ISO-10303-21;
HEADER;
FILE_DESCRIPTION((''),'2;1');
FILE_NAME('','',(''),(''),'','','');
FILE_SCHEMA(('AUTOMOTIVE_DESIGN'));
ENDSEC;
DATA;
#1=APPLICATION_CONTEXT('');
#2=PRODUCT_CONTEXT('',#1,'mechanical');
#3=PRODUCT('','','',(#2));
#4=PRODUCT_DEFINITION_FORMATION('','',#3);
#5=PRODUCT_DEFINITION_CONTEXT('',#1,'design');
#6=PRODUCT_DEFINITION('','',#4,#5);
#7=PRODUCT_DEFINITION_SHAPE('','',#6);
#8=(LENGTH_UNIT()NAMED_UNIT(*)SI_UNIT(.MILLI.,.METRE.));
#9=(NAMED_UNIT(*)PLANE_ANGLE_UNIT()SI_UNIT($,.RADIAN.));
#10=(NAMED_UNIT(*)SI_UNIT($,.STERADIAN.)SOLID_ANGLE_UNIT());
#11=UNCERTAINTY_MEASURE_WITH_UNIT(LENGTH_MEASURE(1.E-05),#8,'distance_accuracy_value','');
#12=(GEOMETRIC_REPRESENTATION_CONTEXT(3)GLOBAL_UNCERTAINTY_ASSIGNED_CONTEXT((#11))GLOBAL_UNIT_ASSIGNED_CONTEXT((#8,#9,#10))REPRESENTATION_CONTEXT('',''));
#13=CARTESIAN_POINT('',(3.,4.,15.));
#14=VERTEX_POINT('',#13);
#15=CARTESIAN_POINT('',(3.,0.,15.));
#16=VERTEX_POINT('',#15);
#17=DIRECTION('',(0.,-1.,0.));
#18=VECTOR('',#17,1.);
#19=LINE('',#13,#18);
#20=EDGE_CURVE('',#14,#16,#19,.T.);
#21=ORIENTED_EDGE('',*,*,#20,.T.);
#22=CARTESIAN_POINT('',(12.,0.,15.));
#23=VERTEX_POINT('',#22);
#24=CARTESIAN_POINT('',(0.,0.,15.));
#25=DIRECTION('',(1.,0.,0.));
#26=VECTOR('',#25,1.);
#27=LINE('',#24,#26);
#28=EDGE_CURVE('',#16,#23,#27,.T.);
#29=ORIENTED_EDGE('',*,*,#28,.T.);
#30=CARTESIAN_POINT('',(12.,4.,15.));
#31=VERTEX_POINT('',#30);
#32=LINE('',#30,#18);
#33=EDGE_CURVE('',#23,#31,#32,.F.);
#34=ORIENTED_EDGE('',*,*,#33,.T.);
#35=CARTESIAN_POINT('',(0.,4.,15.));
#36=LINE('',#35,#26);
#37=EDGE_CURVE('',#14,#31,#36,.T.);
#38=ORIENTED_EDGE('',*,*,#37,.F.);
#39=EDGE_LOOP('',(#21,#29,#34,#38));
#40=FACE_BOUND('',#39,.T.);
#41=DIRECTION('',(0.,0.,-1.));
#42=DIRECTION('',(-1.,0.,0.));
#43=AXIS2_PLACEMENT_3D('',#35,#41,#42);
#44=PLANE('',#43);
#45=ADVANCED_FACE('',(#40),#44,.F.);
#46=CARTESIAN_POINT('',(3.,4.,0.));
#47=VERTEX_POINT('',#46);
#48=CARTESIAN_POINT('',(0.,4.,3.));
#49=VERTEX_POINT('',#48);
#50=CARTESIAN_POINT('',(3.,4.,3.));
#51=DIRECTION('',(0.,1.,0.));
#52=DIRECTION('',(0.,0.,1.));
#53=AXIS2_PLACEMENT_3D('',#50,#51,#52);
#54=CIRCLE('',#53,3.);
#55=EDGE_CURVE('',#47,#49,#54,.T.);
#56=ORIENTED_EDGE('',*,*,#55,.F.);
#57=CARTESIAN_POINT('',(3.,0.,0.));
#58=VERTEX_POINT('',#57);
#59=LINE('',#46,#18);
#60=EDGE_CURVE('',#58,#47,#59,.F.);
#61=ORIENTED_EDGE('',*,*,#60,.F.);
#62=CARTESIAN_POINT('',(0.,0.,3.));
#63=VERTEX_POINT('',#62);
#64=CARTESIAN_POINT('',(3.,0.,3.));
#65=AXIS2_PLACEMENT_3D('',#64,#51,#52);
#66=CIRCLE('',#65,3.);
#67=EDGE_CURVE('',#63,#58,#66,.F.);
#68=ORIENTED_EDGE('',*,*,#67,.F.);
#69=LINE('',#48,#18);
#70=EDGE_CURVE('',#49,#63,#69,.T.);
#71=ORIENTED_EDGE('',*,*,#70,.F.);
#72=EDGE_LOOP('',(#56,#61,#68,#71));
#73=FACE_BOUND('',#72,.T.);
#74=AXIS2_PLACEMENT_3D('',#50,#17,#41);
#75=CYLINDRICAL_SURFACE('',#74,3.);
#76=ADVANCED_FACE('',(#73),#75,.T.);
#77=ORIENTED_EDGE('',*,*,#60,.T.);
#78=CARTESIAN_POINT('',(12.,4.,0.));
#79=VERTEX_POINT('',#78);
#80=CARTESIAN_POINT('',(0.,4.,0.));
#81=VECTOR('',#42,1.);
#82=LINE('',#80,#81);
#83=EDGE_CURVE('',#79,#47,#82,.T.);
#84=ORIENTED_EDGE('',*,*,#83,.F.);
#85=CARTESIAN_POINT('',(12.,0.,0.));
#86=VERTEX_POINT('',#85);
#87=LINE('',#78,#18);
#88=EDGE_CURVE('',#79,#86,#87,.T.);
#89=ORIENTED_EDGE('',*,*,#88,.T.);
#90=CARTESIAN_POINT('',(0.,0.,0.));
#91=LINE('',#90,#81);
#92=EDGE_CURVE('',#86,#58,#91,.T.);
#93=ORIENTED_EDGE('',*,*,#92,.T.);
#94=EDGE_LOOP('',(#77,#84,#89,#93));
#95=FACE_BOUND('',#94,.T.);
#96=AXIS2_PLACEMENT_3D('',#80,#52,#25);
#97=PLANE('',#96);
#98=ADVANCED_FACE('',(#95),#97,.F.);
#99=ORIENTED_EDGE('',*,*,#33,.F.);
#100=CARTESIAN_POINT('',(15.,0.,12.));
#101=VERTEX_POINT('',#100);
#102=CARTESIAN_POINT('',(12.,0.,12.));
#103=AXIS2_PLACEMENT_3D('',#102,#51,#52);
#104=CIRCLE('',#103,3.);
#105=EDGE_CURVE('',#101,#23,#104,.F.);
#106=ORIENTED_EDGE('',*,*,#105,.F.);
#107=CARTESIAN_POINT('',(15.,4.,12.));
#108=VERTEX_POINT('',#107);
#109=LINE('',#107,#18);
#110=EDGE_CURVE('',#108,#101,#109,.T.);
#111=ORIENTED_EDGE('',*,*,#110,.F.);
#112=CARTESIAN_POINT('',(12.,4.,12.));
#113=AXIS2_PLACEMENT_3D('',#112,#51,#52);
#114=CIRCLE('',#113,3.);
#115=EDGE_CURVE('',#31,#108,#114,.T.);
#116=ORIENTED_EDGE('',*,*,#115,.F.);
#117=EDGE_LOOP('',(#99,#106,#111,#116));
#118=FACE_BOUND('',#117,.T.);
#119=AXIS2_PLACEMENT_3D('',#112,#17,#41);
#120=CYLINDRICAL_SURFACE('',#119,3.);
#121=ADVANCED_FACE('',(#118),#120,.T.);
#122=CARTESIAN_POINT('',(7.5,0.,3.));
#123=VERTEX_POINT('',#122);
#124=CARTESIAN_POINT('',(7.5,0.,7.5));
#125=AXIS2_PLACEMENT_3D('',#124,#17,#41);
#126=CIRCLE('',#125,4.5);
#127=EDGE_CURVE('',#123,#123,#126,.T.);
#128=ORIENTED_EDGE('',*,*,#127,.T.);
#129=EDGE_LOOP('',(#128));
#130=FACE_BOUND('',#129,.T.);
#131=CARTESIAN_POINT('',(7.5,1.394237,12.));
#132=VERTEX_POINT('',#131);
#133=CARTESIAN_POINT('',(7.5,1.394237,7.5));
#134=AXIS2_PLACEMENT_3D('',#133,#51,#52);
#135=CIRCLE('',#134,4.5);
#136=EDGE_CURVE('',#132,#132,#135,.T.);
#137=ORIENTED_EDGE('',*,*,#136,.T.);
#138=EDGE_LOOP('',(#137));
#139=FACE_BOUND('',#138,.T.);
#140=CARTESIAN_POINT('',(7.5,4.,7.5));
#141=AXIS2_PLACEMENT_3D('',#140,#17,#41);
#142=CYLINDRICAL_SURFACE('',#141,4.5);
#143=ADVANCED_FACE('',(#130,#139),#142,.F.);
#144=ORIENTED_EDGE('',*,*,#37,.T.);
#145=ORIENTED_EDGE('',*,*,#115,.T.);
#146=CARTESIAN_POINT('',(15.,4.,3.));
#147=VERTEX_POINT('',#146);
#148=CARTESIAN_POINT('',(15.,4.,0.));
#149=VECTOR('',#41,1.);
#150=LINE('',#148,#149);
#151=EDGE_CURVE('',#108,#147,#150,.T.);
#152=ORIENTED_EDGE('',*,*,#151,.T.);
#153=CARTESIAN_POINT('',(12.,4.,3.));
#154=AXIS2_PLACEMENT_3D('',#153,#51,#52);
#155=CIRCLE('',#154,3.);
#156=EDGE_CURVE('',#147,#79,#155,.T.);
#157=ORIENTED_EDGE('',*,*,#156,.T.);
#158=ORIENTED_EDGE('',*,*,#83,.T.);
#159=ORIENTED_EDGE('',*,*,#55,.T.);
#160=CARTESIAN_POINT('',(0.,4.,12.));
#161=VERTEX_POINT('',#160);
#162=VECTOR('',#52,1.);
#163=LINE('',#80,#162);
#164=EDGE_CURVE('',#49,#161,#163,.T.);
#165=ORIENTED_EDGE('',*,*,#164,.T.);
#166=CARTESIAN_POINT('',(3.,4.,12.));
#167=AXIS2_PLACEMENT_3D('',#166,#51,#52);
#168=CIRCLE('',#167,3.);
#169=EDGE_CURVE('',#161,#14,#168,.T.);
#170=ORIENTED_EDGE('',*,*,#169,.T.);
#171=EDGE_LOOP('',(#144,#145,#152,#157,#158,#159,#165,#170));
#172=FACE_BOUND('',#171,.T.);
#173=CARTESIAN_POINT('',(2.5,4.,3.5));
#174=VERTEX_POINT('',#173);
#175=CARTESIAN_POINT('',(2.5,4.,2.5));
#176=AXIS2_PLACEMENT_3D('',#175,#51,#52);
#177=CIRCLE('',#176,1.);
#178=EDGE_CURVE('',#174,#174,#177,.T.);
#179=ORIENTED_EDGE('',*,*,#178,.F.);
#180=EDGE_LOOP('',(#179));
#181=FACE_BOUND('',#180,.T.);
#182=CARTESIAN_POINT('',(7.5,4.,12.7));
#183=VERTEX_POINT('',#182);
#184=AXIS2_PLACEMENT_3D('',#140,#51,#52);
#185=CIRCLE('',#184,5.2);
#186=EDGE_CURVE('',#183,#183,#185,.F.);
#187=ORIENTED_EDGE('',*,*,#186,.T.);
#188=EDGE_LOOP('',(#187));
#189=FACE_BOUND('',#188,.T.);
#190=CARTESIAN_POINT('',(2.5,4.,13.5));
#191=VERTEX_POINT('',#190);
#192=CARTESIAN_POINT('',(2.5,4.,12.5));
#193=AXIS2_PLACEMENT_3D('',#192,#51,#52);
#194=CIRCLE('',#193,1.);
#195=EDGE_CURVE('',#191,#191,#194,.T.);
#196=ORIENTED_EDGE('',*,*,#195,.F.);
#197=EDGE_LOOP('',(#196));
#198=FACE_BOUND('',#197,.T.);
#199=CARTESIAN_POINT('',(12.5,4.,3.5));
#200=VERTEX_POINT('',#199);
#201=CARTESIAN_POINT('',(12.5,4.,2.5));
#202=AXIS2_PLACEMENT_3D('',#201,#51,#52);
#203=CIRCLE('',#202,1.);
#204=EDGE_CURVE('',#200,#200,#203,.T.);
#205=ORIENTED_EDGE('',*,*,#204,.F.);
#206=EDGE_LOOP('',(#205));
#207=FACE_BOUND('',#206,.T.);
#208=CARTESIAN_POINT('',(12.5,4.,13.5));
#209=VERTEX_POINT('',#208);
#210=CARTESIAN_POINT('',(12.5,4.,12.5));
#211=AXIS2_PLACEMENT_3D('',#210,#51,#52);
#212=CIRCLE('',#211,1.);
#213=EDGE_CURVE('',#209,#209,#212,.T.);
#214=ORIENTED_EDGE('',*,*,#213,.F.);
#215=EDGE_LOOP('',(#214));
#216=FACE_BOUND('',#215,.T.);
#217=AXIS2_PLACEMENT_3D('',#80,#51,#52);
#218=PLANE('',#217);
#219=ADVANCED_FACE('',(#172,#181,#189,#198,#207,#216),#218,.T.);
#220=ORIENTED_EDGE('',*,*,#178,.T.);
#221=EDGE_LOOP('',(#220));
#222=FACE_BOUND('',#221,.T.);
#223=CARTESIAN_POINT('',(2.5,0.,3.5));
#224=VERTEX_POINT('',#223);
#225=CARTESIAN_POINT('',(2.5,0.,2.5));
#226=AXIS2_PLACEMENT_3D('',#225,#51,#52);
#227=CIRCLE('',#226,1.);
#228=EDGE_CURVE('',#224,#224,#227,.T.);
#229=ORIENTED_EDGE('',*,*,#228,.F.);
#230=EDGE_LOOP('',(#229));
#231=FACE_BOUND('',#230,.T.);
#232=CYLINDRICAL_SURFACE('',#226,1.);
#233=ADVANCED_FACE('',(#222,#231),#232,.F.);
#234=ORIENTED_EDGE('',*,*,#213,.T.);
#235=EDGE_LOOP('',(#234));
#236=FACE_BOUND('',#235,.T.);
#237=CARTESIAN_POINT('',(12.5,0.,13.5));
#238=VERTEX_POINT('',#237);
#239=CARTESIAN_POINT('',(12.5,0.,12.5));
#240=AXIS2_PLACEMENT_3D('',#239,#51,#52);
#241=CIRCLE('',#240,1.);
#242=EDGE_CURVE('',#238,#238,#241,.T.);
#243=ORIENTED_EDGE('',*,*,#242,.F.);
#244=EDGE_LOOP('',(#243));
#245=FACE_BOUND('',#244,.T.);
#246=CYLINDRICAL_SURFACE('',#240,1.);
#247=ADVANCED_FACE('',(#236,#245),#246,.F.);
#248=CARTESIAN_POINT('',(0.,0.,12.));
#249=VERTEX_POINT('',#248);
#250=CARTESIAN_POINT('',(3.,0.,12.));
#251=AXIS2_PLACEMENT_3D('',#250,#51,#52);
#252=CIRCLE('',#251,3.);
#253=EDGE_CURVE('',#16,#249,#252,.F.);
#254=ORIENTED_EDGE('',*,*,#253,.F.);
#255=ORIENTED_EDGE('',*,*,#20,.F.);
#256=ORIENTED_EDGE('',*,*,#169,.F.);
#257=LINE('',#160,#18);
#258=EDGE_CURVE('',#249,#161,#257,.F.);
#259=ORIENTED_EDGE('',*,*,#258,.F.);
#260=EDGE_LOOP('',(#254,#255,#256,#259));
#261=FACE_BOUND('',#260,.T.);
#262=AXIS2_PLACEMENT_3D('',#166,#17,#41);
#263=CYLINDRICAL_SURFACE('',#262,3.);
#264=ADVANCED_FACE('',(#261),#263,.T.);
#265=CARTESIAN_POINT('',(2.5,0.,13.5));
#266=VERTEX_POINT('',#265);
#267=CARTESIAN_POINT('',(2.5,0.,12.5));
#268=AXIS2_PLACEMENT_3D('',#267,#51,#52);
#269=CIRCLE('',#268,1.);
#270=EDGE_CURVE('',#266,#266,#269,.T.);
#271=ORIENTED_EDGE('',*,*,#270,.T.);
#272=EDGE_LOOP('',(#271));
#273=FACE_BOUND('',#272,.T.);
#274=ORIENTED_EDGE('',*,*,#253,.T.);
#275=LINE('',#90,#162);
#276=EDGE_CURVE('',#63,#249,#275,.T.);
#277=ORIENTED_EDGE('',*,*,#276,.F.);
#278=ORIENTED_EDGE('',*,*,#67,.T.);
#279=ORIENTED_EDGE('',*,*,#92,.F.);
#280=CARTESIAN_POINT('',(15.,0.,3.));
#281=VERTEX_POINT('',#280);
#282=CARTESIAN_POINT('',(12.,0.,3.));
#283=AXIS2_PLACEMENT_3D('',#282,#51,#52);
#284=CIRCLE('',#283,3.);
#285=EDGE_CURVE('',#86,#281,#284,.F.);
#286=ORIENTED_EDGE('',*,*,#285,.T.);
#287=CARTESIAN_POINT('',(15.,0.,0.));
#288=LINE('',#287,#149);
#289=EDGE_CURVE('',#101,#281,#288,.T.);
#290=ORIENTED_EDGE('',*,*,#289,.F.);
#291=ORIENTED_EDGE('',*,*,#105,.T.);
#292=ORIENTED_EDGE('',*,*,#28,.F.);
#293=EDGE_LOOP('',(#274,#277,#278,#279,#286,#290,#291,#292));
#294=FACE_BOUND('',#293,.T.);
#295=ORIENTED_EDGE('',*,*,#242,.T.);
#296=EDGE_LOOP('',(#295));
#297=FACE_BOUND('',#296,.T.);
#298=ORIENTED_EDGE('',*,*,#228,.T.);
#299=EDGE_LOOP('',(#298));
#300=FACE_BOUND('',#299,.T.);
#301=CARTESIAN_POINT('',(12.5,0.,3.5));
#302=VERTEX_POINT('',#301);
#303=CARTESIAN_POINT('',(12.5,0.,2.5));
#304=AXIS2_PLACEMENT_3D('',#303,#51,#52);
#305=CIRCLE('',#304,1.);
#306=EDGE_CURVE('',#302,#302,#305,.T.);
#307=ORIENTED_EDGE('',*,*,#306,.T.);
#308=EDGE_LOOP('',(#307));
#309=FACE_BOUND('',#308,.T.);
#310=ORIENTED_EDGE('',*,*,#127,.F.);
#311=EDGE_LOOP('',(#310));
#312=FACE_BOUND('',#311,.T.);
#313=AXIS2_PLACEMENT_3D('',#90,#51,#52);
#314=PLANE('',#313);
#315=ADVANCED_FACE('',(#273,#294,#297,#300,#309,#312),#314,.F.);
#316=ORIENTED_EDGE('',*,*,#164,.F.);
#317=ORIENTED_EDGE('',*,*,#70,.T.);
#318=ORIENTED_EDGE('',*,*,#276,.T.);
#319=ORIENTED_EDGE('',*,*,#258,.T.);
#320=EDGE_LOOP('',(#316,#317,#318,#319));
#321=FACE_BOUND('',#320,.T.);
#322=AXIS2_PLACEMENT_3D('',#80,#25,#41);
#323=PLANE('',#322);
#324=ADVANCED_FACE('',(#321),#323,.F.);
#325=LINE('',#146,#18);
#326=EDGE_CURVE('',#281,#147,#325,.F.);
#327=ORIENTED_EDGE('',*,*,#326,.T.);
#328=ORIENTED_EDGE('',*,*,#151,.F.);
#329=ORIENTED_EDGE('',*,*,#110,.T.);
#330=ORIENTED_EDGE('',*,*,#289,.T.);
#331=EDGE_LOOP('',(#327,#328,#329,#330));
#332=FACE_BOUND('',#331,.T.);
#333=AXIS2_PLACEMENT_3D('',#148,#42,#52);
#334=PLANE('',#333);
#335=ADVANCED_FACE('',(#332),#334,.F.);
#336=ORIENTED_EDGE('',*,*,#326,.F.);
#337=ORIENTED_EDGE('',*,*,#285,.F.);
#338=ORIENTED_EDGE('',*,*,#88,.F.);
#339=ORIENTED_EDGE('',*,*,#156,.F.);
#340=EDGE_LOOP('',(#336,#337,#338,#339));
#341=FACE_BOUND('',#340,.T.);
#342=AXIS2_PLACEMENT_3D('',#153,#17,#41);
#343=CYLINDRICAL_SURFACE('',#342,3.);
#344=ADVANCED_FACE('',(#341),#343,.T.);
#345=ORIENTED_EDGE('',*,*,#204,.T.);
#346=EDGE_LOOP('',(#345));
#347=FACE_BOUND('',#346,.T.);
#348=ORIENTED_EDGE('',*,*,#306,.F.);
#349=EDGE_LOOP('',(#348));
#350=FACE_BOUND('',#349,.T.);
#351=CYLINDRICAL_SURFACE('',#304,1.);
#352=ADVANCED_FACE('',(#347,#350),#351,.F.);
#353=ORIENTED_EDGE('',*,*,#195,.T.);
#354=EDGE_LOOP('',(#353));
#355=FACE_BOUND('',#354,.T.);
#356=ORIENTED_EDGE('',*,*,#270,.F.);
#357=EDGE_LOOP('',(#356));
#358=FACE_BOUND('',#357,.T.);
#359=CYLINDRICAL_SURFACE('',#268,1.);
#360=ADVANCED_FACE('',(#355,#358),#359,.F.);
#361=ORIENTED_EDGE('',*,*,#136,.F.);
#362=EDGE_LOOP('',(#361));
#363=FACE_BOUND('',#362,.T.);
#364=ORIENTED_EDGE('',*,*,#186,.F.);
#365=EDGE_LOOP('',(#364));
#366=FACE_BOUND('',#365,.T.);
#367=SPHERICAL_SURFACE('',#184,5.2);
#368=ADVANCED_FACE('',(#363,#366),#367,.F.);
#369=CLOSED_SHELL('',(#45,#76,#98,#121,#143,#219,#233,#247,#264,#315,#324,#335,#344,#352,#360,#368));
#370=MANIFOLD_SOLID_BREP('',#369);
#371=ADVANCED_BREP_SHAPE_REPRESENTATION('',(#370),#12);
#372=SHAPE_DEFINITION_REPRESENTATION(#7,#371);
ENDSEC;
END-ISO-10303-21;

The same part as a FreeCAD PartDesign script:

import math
import FreeCAD as App
import Part
import Sketcher
Q = App.Units.Quantity


def edges_at(feature, points):
    """Names of the edges that pass closest to the given points."""
    edges = feature.Shape.Edges
    near = lambda p: min(range(len(edges)), key=lambda i: edges[i].distToShape(Part.Vertex(*p))[0])
    return sorted({f"Edge{near(p) + 1}" for p in points})

doc = App.newDocument("Part")
params = doc.addObject("Spreadsheet::Sheet", "Params")
for row, (alias, value) in enumerate([
    ("sketch1_width", "15 mm"),
    ("pad1_length", "4 mm"),
    ("sketch2_radius", "5.2 mm"),
    ("groove_angle", "360 deg"),
    ("sketch3_diameter", "2 mm"),
    ("sketch4_diameter", "9 mm"),
    ("fillet_radius", "3 mm"),
], start=1):
    params.set(f"A{row}", alias)
    params.set(f"B{row}", "=" + value)
    params.setAlias(f"B{row}", alias)

body = doc.addObject("PartDesign::Body", "Body")

# Sketch on XZ plane
sketch1 = body.newObject("Sketcher::SketchObject", "Sketch")
sketch1.AttachmentSupport = (doc.getObject("XZ_Plane"), [""])
sketch1.MapMode = "FlatFace"
sketch1.addGeometry(Part.LineSegment(App.Vector(0, 0, 0), App.Vector(0, 15, 0)), False)
sketch1.addGeometry(Part.LineSegment(App.Vector(0, 15, 0), App.Vector(15, 15, 0)), False)
sketch1.addGeometry(Part.LineSegment(App.Vector(15, 15, 0), App.Vector(15, 0, 0)), False)
sketch1.addGeometry(Part.LineSegment(App.Vector(15, 0, 0), App.Vector(0, 0, 0)), False)
sketch1.addConstraint(Sketcher.Constraint("Coincident", 0, 2, 1, 1))
sketch1.addConstraint(Sketcher.Constraint("Coincident", 1, 2, 2, 1))
sketch1.addConstraint(Sketcher.Constraint("Coincident", 2, 2, 3, 1))
sketch1.addConstraint(Sketcher.Constraint("Coincident", 3, 2, 0, 1))
sketch1.addConstraint(Sketcher.Constraint("Vertical", 0))
sketch1.addConstraint(Sketcher.Constraint("Horizontal", 1))
sketch1.addConstraint(Sketcher.Constraint("Vertical", 2))
sketch1.addConstraint(Sketcher.Constraint("Horizontal", 3))
sketch1.addConstraint(Sketcher.Constraint("Coincident", 3, 2, -1, 1))
sketch1.addConstraint(Sketcher.Constraint("Equal", 3, 0))
sketch1.addConstraint(Sketcher.Constraint("DistanceX", 1, 1, 1, 2, Q("15 mm")))
sketch1.setExpression("Constraints[10]", "Params.sketch1_width")
pad1 = body.newObject("PartDesign::Pad", "Pad")
pad1.Profile = sketch1
pad1.setExpression("Length", "Params.pad1_length")
pad1.Reversed = True

# Sketch on XZ plane
sketch2 = body.newObject("Sketcher::SketchObject", "Sketch001")
sketch2.AttachmentSupport = (doc.getObject("XZ_Plane"), [""])
sketch2.MapMode = "FlatFace"
sketch2.AttachmentOffset = App.Placement(App.Vector(0, 0, -4), App.Rotation())
sketch2.addGeometry(Part.LineSegment(App.Vector(13, 8, 0), App.Vector(2, 8, 0)), False)
sketch2.addGeometry(Part.ArcOfCircle(Part.Circle(App.Vector(8, 8, 0), App.Vector(0, 0, 1), 5), math.radians(0), math.radians(180)), False)
sketch2.addGeometry(Part.LineSegment(App.Vector(13, 8, 0), App.Vector(2, 8, 0)), True)  # axis
sketch2.addConstraint(Sketcher.Constraint("Coincident", 0, 1, 1, 1))
sketch2.addConstraint(Sketcher.Constraint("Coincident", 1, 2, 0, 2))
sketch2.addConstraint(Sketcher.Constraint("Horizontal", 0))
sketch2.addConstraint(Sketcher.Constraint("Horizontal", 2))
sketch2.addConstraint(Sketcher.Constraint("Coincident", 2, 1, 0, 1))
sketch2.addConstraint(Sketcher.Constraint("Horizontal", 1, 3, 0, 1))
sketch2.addConstraint(Sketcher.Constraint("Equal", 0, 2))
sketch2.addConstraint(Sketcher.Constraint("Radius", 1, Q("5.2 mm")))
sketch2.addConstraint(Sketcher.Constraint("DistanceX", -1, 1, 1, 3, Q("7.5 mm")))
sketch2.addConstraint(Sketcher.Constraint("DistanceY", -1, 1, 1, 3, Q("7.5 mm")))
sketch2.setExpression("Constraints[7]", "Params.sketch2_radius")
groove = body.newObject("PartDesign::Groove", "Groove")
groove.Profile = sketch2
groove.ReferenceAxis = (sketch2, ["Axis0"])
groove.setExpression("Angle", "Params.groove_angle")

# Sketch on XZ plane
sketch3 = body.newObject("Sketcher::SketchObject", "Sketch002")
sketch3.AttachmentSupport = (doc.getObject("XZ_Plane"), [""])
sketch3.MapMode = "FlatFace"
sketch3.AttachmentOffset = App.Placement(App.Vector(0, 0, -4), App.Rotation())
sketch3.addGeometry(Part.Circle(App.Vector(2.5, 12.5, 0), App.Vector(0, 0, 1), 1), False)
sketch3.addGeometry(Part.Circle(App.Vector(12.5, 12.5, 0), App.Vector(0, 0, 1), 1), False)
sketch3.addGeometry(Part.Circle(App.Vector(12.5, 2.5, 0), App.Vector(0, 0, 1), 1), False)
sketch3.addGeometry(Part.Circle(App.Vector(2.5, 2.5, 0), App.Vector(0, 0, 1), 1), False)
sketch3.addConstraint(Sketcher.Constraint("Equal", 0, 1))
sketch3.addConstraint(Sketcher.Constraint("Equal", 1, 2))
sketch3.addConstraint(Sketcher.Constraint("Equal", 2, 3))
sketch3.addConstraint(Sketcher.Constraint("Horizontal", 0, 3, 1, 3))
sketch3.addConstraint(Sketcher.Constraint("Horizontal", 2, 3, 3, 3))
sketch3.addConstraint(Sketcher.Constraint("Vertical", 1, 3, 2, 3))
sketch3.addConstraint(Sketcher.Constraint("Vertical", 0, 3, 3, 3))
sketch3.addConstraint(Sketcher.Constraint("Diameter", 0, Q("2 mm")))
sketch3.addConstraint(Sketcher.Constraint("DistanceX", 0, 3, 1, 3, Q("10 mm")))
sketch3.addConstraint(Sketcher.Constraint("DistanceY", 2, 3, 1, 3, Q("10 mm")))
sketch3.addConstraint(Sketcher.Constraint("DistanceX", -1, 1, 0, 3, Q("2.5 mm")))
sketch3.addConstraint(Sketcher.Constraint("DistanceY", -1, 1, 0, 3, Q("12.5 mm")))
sketch3.setExpression("Constraints[7]", "Params.sketch3_diameter")
pocket1 = body.newObject("PartDesign::Pocket", "Pocket")
pocket1.Profile = sketch3
pocket1.Type = "ThroughAll"
pocket1.Reversed = True

# Sketch on XZ plane
sketch4 = body.newObject("Sketcher::SketchObject", "Sketch003")
sketch4.AttachmentSupport = (doc.getObject("XZ_Plane"), [""])
sketch4.MapMode = "FlatFace"
sketch4.addGeometry(Part.Circle(App.Vector(7.5, 7.5, 0), App.Vector(0, 0, 1), 4.5), False)
sketch4.addConstraint(Sketcher.Constraint("Diameter", 0, Q("9 mm")))
sketch4.addConstraint(Sketcher.Constraint("DistanceX", -1, 1, 0, 3, Q("7.5 mm")))
sketch4.addConstraint(Sketcher.Constraint("DistanceY", -1, 1, 0, 3, Q("7.5 mm")))
sketch4.setExpression("Constraints[0]", "Params.sketch4_diameter")
pocket2 = body.newObject("PartDesign::Pocket", "Pocket001")
pocket2.Profile = sketch4
pocket2.Type = "ThroughAll"
doc.recompute()

fillet = body.newObject("PartDesign::Fillet", "Fillet")
fillet.Base = (pocket2, edges_at(pocket2, [
    (0, 2, 0),
    (15, 2, 0),
    (15, 2, 15),
    (0, 2, 15),
]))
fillet.setExpression("Radius", "Params.fillet_radius")

doc.recompute()
